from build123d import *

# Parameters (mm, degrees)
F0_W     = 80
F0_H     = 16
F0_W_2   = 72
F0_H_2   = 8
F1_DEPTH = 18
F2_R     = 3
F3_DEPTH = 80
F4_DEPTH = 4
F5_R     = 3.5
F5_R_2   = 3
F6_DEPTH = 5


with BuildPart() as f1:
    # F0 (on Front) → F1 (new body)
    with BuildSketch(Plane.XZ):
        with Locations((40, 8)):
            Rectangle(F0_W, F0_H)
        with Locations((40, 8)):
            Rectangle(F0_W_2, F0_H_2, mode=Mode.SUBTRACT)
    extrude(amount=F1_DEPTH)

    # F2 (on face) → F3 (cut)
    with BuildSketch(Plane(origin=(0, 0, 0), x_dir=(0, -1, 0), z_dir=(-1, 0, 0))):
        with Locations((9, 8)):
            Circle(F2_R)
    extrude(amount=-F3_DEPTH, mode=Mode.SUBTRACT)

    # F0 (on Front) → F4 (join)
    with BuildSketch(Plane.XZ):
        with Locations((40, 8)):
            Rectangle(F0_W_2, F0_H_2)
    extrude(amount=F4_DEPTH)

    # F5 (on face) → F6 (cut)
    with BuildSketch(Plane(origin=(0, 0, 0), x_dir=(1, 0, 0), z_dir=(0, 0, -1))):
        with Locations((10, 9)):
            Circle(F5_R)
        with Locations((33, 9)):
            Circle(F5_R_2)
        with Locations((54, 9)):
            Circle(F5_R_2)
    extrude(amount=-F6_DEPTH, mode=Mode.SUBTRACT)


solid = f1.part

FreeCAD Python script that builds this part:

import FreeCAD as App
import Part
import Sketcher
from FreeCAD import Vector
Q = App.Units.Quantity

doc = App.newDocument("Part")
params = doc.addObject("Spreadsheet::Sheet", "Params")
for row, (alias, value) in enumerate([
    ("sketch1_width", "80 mm"),
    ("sketch1_width2", "72 mm"),
    ("sketch1_height", "16 mm"),
    ("sketch1_height2", "8 mm"),
    ("pad1_length", "18 mm"),
    ("sketch2_diameter", "6 mm"),
    ("pocket1_length", "80 mm"),
    ("sketch3_width", "72 mm"),
    ("sketch3_height", "8 mm"),
    ("pad2_length", "4 mm"),
    ("sketch4_diameter", "7 mm"),
    ("sketch4_diameter2", "6 mm"),
    ("pocket2_length", "5 mm"),
], start=1):
    params.set(f"A{row}", alias)
    params.set(f"B{row}", "=" + value)
    params.setAlias(f"B{row}", alias)

body = doc.addObject("PartDesign::Body", "Body")

sketch1 = body.newObject("Sketcher::SketchObject", "Sketch")
sketch1.AttachmentSupport = (doc.getObject("XZ_Plane"), [""])
sketch1.MapMode = "FlatFace"
sketch1.addGeometry([
    Part.LineSegment(Vector(0, 16, 0), Vector(0, 0, 0)),
    Part.LineSegment(Vector(0, 0, 0), Vector(80, 0, 0)),
    Part.LineSegment(Vector(80, 0, 0), Vector(80, 16, 0)),
    Part.LineSegment(Vector(80, 16, 0), Vector(0, 16, 0)),
    Part.LineSegment(Vector(76, 4, 0), Vector(4, 4, 0)),
    Part.LineSegment(Vector(4, 4, 0), Vector(4, 12, 0)),
    Part.LineSegment(Vector(4, 12, 0), Vector(76, 12, 0)),
    Part.LineSegment(Vector(76, 12, 0), Vector(76, 4, 0)),
], False)
sketch1.addConstraint([
    Sketcher.Constraint("Coincident", 0, 2, 1, 1),
    Sketcher.Constraint("Coincident", 1, 2, 2, 1),
    Sketcher.Constraint("Coincident", 2, 2, 3, 1),
    Sketcher.Constraint("Coincident", 3, 2, 0, 1),
    Sketcher.Constraint("Coincident", 4, 2, 5, 1),
    Sketcher.Constraint("Coincident", 5, 2, 6, 1),
    Sketcher.Constraint("Coincident", 6, 2, 7, 1),
    Sketcher.Constraint("Coincident", 7, 2, 4, 1),
    Sketcher.Constraint("Vertical", 0),
    Sketcher.Constraint("Horizontal", 1),
    Sketcher.Constraint("Vertical", 2),
    Sketcher.Constraint("Horizontal", 3),
    Sketcher.Constraint("Horizontal", 4),
    Sketcher.Constraint("Vertical", 5),
    Sketcher.Constraint("Horizontal", 6),
    Sketcher.Constraint("Vertical", 7),
    Sketcher.Constraint("Coincident", 0, 2, -1, 1),
    Sketcher.Constraint("DistanceX", 1, 1, 1, 2, Q("80 mm")),
    Sketcher.Constraint("DistanceX", 4, 2, 4, 1, Q("72 mm")),
    Sketcher.Constraint("DistanceY", 0, 2, 0, 1, Q("16 mm")),
    Sketcher.Constraint("DistanceY", 5, 1, 5, 2, Q("8 mm")),
    Sketcher.Constraint("DistanceX", -1, 1, 4, 2, Q("4 mm")),
    Sketcher.Constraint("DistanceY", -1, 1, 4, 2, Q("4 mm")),
])
sketch1.setExpression("Constraints[17]", "Params.sketch1_width")
sketch1.setExpression("Constraints[18]", "Params.sketch1_width2")
sketch1.setExpression("Constraints[19]", "Params.sketch1_height")
sketch1.setExpression("Constraints[20]", "Params.sketch1_height2")
pad1 = body.newObject("PartDesign::Pad", "Pad")
pad1.Profile = sketch1
pad1.setExpression("Length", "Params.pad1_length")

sketch2 = body.newObject("Sketcher::SketchObject", "Sketch001")
sketch2.AttachmentSupport = (doc.getObject("YZ_Plane"), [""])
sketch2.MapMode = "FlatFace"
sketch2.addGeometry(Part.Circle(Vector(-9, 8, 0), Vector(0, 0, 1), 3), False)
sketch2.addConstraint([
    Sketcher.Constraint("Diameter", 0, Q("6 mm")),
    Sketcher.Constraint("DistanceX", 0, 3, -1, 1, Q("9 mm")),
    Sketcher.Constraint("DistanceY", -1, 1, 0, 3, Q("8 mm")),
])
sketch2.setExpression("Constraints[0]", "Params.sketch2_diameter")
pocket1 = body.newObject("PartDesign::Pocket", "Pocket")
pocket1.Profile = sketch2
pocket1.setExpression("Length", "Params.pocket1_length")
pocket1.Reversed = True

sketch3 = body.newObject("Sketcher::SketchObject", "Sketch002")
sketch3.AttachmentSupport = (doc.getObject("XZ_Plane"), [""])
sketch3.MapMode = "FlatFace"
sketch3.addGeometry([
    Part.LineSegment(Vector(4, 12, 0), Vector(4, 4, 0)),
    Part.LineSegment(Vector(4, 4, 0), Vector(76, 4, 0)),
    Part.LineSegment(Vector(76, 4, 0), Vector(76, 12, 0)),
    Part.LineSegment(Vector(76, 12, 0), Vector(4, 12, 0)),
], False)
sketch3.addConstraint([
    Sketcher.Constraint("Coincident", 0, 2, 1, 1),
    Sketcher.Constraint("Coincident", 1, 2, 2, 1),
    Sketcher.Constraint("Coincident", 2, 2, 3, 1),
    Sketcher.Constraint("Coincident", 3, 2, 0, 1),
    Sketcher.Constraint("Vertical", 0),
    Sketcher.Constraint("Horizontal", 1),
    Sketcher.Constraint("Vertical", 2),
    Sketcher.Constraint("Horizontal", 3),
    Sketcher.Constraint("DistanceX", 1, 1, 1, 2, Q("72 mm")),
    Sketcher.Constraint("DistanceY", 0, 2, 0, 1, Q("8 mm")),
    Sketcher.Constraint("DistanceX", -1, 1, 0, 2, Q("4 mm")),
    Sketcher.Constraint("DistanceY", -1, 1, 0, 2, Q("4 mm")),
])
sketch3.setExpression("Constraints[8]", "Params.sketch3_width")
sketch3.setExpression("Constraints[9]", "Params.sketch3_height")
pad2 = body.newObject("PartDesign::Pad", "Pad001")
pad2.Profile = sketch3
pad2.setExpression("Length", "Params.pad2_length")

sketch4 = body.newObject("Sketcher::SketchObject", "Sketch003")
sketch4.AttachmentSupport = (doc.getObject("XY_Plane"), [""])
sketch4.MapMode = "FlatFace"
sketch4.addGeometry([
    Part.Circle(Vector(10, -9, 0), Vector(0, 0, 1), 3.5),
    Part.Circle(Vector(33, -9, 0), Vector(0, 0, 1), 3),
    Part.Circle(Vector(54, -9, 0), Vector(0, 0, 1), 3),
], False)
sketch4.addConstraint([
    Sketcher.Constraint("Equal", 1, 2),
    Sketcher.Constraint("Horizontal", 0, 3, 1, 3),
    Sketcher.Constraint("Horizontal", 1, 3, 2, 3),
    Sketcher.Constraint("Diameter", 0, Q("7 mm")),
    Sketcher.Constraint("Diameter", 1, Q("6 mm")),
    Sketcher.Constraint("DistanceX", -1, 1, 0, 3, Q("10 mm")),
    Sketcher.Constraint("DistanceY", 0, 3, -1, 1, Q("9 mm")),
    Sketcher.Constraint("DistanceX", -1, 1, 1, 3, Q("33 mm")),
    Sketcher.Constraint("DistanceX", -1, 1, 2, 3, Q("54 mm")),
])
sketch4.setExpression("Constraints[3]", "Params.sketch4_diameter")
sketch4.setExpression("Constraints[4]", "Params.sketch4_diameter2")
pocket2 = body.newObject("PartDesign::Pocket", "Pocket001")
pocket2.Profile = sketch4
pocket2.setExpression("Length", "Params.pocket2_length")
pocket2.Reversed = True

doc.recompute()
